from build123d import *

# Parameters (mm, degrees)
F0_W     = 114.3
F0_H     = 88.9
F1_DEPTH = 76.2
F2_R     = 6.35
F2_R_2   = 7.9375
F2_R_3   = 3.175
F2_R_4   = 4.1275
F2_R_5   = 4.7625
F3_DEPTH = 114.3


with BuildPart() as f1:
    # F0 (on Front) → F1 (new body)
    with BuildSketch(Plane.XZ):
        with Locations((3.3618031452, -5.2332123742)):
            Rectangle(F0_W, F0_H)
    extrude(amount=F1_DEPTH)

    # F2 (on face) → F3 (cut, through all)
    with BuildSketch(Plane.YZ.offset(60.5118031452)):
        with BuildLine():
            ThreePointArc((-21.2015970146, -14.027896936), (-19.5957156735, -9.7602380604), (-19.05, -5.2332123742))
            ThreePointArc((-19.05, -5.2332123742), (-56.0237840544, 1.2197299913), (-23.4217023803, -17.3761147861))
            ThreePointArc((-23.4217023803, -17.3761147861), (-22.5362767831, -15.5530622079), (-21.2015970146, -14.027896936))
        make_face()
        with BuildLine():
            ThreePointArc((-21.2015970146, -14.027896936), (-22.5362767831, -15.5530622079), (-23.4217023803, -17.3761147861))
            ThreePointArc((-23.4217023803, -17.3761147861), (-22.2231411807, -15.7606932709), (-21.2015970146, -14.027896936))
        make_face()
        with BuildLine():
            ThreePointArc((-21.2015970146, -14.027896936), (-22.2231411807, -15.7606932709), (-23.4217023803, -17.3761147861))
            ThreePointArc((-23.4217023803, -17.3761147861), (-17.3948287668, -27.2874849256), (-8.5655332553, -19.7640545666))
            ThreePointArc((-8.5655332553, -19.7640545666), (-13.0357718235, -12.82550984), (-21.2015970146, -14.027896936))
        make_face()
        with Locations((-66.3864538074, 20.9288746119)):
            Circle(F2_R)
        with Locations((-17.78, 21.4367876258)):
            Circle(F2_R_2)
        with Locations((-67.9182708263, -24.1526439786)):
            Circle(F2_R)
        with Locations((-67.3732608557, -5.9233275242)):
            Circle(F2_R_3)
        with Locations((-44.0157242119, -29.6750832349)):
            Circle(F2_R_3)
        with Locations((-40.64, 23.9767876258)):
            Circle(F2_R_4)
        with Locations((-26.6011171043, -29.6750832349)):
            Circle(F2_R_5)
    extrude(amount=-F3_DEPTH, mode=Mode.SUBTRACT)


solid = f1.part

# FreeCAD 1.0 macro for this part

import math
import FreeCAD as App
import Part
import Sketcher
Q = App.Units.Quantity

doc = App.newDocument("Part")
params = doc.addObject("Spreadsheet::Sheet", "Params")
for row, (alias, value) in enumerate([
    ("sketch1_width", "4.5 in"),
    ("sketch1_height", "3.5 in"),
    ("pad1_length", "3 in"),
    ("sketch2_diameter", "0.5 in"),
    ("sketch2_radius", "0.3 in"),
    ("sketch2_diameter2", "0.25 in"),
    ("sketch2_radius2", "0.75 in"),
    ("sketch2_diameter3", "0.625 in"),
], start=1):
    params.set(f"A{row}", alias)
    params.set(f"B{row}", "=" + value)
    params.setAlias(f"B{row}", alias)

body = doc.addObject("PartDesign::Body", "Body")

# Sketch on XZ plane
sketch1 = doc.addObject("Sketcher::SketchObject", "Sketch")
body.addObject(sketch1)
sketch1.AttachmentSupport = (doc.XZ_Plane, [""])
sketch1.MapMode = "FlatFace"
sketch1.addGeometry([
    Part.LineSegment(App.Vector(-54, 39, 0), App.Vector(-54, -50, 0)),
    Part.LineSegment(App.Vector(-54, -50, 0), App.Vector(61, -50, 0)),
    Part.LineSegment(App.Vector(61, -50, 0), App.Vector(61, 39, 0)),
    Part.LineSegment(App.Vector(61, 39, 0), App.Vector(-54, 39, 0)),
], False)
sketch1.addConstraint([
    Sketcher.Constraint("Coincident", 0, 2, 1, 1),
    Sketcher.Constraint("Coincident", 1, 2, 2, 1),
    Sketcher.Constraint("Coincident", 2, 2, 3, 1),
    Sketcher.Constraint("Coincident", 3, 2, 0, 1),
    Sketcher.Constraint("Vertical", 0),
    Sketcher.Constraint("Horizontal", 1),
    Sketcher.Constraint("Vertical", 2),
    Sketcher.Constraint("Horizontal", 3),
    Sketcher.Constraint("DistanceX", 1, 1, 1, 2, Q("4.5 in")),
    Sketcher.Constraint("DistanceY", 0, 2, 0, 1, Q("3.5 in")),
    Sketcher.Constraint("DistanceX", 0, 2, -1, 1, Q("53.788197 mm")),
    Sketcher.Constraint("DistanceY", 0, 2, -1, 1, Q("49.683212 mm")),
])
sketch1.setExpression("Constraints[8]", "Params.sketch1_width")
sketch1.setExpression("Constraints[9]", "Params.sketch1_height")
pad1 = doc.addObject("PartDesign::Pad", "Pad")
body.addObject(pad1)
pad1.Profile = sketch1
pad1.setExpression("Length", "Params.pad1_length")

# Sketch on YZ plane
sketch2 = doc.addObject("Sketcher::SketchObject", "Sketch001")
body.addObject(sketch2)
sketch2.AttachmentSupport = (doc.YZ_Plane, [""])
sketch2.MapMode = "FlatFace"
sketch2.AttachmentOffset = App.Placement(App.Vector(0, 0, 60.511803), App.Rotation())
sketch2.addGeometry([
    Part.ArcOfCircle(Part.Circle(App.Vector(-38.1, -5.2, 0), App.Vector(0, 0, 1), 19.1), math.radians(-27), math.radians(0)),  # 0
    Part.ArcOfCircle(Part.Circle(App.Vector(-38.1, -5.2, 0), App.Vector(0, 0, 1), 19.1), math.radians(0), math.radians(320)),  # 1
    Part.ArcOfCircle(Part.Circle(App.Vector(-16.2, -19.8, 0), App.Vector(0, 0, 1), 7.6), math.radians(162), math.radians(360)),  # 2
    Part.ArcOfCircle(Part.Circle(App.Vector(-16.2, -19.8, 0), App.Vector(0, 0, 1), 7.6), math.radians(0), math.radians(131)),  # 3
    Part.Circle(App.Vector(-66.4, 20.9, 0), App.Vector(0, 0, 1), 6.3),  # 4
    Part.Circle(App.Vector(-17.8, 21.4, 0), App.Vector(0, 0, 1), 7.9),  # 5
    Part.Circle(App.Vector(-67.9, -24.2, 0), App.Vector(0, 0, 1), 6.3),  # 6
    Part.Circle(App.Vector(-67.4, -5.9, 0), App.Vector(0, 0, 1), 3.2),  # 7
    Part.Circle(App.Vector(-44, -29.7, 0), App.Vector(0, 0, 1), 3.2),  # 8
    Part.Circle(App.Vector(-40.6, 24, 0), App.Vector(0, 0, 1), 4.1),  # 9
    Part.Circle(App.Vector(-26.6, -29.7, 0), App.Vector(0, 0, 1), 4.8),  # 10
], False)
sketch2.addConstraint([
    Sketcher.Constraint("Tangent", 0, 2, 1, 1),
    Sketcher.Constraint("Coincident", 1, 2, 2, 1),
    Sketcher.Constraint("Tangent", 2, 2, 3, 1),
    Sketcher.Constraint("Coincident", 3, 2, 0, 1),
    Sketcher.Constraint("Equal", 0, 1),
    Sketcher.Constraint("Equal", 2, 3),
    Sketcher.Constraint("Equal", 4, 6),
    Sketcher.Constraint("Equal", 7, 8),
    Sketcher.Constraint("Horizontal", 8, 3, 10, 3),
    Sketcher.Constraint("Horizontal", 1, 3, 0, 2),
    Sketcher.Constraint("Horizontal", 3, 3, 2, 2),
    Sketcher.Constraint("Diameter", 4, Q("0.5 in")),
    Sketcher.Constraint("Radius", 2, Q("0.3 in")),
    Sketcher.Constraint("Diameter", 7, Q("0.25 in")),
    Sketcher.Constraint("Radius", 0, Q("0.75 in")),
    Sketcher.Constraint("Diameter", 5, Q("0.625 in")),
    Sketcher.Constraint("Diameter", 9, Q("0.325 in")),
    Sketcher.Constraint("Diameter", 10, Q("0.375 in")),
    Sketcher.Constraint("DistanceX", 0, 3, -1, 1, Q("1.5 in")),
    Sketcher.Constraint("DistanceX", 5, 3, -1, 1, Q("0.7 in")),
    Sketcher.Constraint("DistanceX", 9, 3, -1, 1, Q("1.6 in")),
    Sketcher.Constraint("DistanceY", 5, 3, 9, 3, Q("0.1 in")),
    Sketcher.Constraint("DistanceY", 0, 3, 5, 3, Q("1.05 in")),
    Sketcher.Constraint("DistanceX", 6, 3, -1, 1, Q("67.918271 mm")),
    Sketcher.Constraint("DistanceX", 7, 3, -1, 1, Q("67.373261 mm")),
    Sketcher.Constraint("DistanceX", 4, 3, 2, 3, Q("50.200921 mm")),
    Sketcher.Constraint("DistanceY", 2, 3, 4, 3, Q("40.692929 mm")),
    Sketcher.Constraint("DistanceY", 6, 3, 0, 3, Q("18.919432 mm")),
    Sketcher.Constraint("DistanceY", 6, 3, 4, 3, Q("45.081519 mm")),
    Sketcher.Constraint("DistanceY", 8, 3, 6, 3, Q("5.522439 mm")),
    Sketcher.Constraint("DistanceX", 8, 3, 2, 3, Q("27.830191 mm")),
    Sketcher.Constraint("DistanceX", 1, 2, 2, 3, Q("7.236169 mm")),
    Sketcher.Constraint("DistanceY", 0, 3, -1, 1, Q("5.233212 mm")),
    Sketcher.Constraint("DistanceY", 7, 3, -1, 1, Q("5.923328 mm")),
    Sketcher.Constraint("DistanceX", 10, 3, -1, 1, Q("26.601117 mm")),
])
sketch2.setExpression("Constraints[11]", "Params.sketch2_diameter")
sketch2.setExpression("Constraints[12]", "Params.sketch2_radius")
sketch2.setExpression("Constraints[13]", "Params.sketch2_diameter2")
sketch2.setExpression("Constraints[14]", "Params.sketch2_radius2")
sketch2.setExpression("Constraints[15]", "Params.sketch2_diameter3")
pocket1 = doc.addObject("PartDesign::Pocket", "Pocket")
body.addObject(pocket1)
pocket1.Profile = sketch2
pocket1.Type = "ThroughAll"

doc.recompute()
